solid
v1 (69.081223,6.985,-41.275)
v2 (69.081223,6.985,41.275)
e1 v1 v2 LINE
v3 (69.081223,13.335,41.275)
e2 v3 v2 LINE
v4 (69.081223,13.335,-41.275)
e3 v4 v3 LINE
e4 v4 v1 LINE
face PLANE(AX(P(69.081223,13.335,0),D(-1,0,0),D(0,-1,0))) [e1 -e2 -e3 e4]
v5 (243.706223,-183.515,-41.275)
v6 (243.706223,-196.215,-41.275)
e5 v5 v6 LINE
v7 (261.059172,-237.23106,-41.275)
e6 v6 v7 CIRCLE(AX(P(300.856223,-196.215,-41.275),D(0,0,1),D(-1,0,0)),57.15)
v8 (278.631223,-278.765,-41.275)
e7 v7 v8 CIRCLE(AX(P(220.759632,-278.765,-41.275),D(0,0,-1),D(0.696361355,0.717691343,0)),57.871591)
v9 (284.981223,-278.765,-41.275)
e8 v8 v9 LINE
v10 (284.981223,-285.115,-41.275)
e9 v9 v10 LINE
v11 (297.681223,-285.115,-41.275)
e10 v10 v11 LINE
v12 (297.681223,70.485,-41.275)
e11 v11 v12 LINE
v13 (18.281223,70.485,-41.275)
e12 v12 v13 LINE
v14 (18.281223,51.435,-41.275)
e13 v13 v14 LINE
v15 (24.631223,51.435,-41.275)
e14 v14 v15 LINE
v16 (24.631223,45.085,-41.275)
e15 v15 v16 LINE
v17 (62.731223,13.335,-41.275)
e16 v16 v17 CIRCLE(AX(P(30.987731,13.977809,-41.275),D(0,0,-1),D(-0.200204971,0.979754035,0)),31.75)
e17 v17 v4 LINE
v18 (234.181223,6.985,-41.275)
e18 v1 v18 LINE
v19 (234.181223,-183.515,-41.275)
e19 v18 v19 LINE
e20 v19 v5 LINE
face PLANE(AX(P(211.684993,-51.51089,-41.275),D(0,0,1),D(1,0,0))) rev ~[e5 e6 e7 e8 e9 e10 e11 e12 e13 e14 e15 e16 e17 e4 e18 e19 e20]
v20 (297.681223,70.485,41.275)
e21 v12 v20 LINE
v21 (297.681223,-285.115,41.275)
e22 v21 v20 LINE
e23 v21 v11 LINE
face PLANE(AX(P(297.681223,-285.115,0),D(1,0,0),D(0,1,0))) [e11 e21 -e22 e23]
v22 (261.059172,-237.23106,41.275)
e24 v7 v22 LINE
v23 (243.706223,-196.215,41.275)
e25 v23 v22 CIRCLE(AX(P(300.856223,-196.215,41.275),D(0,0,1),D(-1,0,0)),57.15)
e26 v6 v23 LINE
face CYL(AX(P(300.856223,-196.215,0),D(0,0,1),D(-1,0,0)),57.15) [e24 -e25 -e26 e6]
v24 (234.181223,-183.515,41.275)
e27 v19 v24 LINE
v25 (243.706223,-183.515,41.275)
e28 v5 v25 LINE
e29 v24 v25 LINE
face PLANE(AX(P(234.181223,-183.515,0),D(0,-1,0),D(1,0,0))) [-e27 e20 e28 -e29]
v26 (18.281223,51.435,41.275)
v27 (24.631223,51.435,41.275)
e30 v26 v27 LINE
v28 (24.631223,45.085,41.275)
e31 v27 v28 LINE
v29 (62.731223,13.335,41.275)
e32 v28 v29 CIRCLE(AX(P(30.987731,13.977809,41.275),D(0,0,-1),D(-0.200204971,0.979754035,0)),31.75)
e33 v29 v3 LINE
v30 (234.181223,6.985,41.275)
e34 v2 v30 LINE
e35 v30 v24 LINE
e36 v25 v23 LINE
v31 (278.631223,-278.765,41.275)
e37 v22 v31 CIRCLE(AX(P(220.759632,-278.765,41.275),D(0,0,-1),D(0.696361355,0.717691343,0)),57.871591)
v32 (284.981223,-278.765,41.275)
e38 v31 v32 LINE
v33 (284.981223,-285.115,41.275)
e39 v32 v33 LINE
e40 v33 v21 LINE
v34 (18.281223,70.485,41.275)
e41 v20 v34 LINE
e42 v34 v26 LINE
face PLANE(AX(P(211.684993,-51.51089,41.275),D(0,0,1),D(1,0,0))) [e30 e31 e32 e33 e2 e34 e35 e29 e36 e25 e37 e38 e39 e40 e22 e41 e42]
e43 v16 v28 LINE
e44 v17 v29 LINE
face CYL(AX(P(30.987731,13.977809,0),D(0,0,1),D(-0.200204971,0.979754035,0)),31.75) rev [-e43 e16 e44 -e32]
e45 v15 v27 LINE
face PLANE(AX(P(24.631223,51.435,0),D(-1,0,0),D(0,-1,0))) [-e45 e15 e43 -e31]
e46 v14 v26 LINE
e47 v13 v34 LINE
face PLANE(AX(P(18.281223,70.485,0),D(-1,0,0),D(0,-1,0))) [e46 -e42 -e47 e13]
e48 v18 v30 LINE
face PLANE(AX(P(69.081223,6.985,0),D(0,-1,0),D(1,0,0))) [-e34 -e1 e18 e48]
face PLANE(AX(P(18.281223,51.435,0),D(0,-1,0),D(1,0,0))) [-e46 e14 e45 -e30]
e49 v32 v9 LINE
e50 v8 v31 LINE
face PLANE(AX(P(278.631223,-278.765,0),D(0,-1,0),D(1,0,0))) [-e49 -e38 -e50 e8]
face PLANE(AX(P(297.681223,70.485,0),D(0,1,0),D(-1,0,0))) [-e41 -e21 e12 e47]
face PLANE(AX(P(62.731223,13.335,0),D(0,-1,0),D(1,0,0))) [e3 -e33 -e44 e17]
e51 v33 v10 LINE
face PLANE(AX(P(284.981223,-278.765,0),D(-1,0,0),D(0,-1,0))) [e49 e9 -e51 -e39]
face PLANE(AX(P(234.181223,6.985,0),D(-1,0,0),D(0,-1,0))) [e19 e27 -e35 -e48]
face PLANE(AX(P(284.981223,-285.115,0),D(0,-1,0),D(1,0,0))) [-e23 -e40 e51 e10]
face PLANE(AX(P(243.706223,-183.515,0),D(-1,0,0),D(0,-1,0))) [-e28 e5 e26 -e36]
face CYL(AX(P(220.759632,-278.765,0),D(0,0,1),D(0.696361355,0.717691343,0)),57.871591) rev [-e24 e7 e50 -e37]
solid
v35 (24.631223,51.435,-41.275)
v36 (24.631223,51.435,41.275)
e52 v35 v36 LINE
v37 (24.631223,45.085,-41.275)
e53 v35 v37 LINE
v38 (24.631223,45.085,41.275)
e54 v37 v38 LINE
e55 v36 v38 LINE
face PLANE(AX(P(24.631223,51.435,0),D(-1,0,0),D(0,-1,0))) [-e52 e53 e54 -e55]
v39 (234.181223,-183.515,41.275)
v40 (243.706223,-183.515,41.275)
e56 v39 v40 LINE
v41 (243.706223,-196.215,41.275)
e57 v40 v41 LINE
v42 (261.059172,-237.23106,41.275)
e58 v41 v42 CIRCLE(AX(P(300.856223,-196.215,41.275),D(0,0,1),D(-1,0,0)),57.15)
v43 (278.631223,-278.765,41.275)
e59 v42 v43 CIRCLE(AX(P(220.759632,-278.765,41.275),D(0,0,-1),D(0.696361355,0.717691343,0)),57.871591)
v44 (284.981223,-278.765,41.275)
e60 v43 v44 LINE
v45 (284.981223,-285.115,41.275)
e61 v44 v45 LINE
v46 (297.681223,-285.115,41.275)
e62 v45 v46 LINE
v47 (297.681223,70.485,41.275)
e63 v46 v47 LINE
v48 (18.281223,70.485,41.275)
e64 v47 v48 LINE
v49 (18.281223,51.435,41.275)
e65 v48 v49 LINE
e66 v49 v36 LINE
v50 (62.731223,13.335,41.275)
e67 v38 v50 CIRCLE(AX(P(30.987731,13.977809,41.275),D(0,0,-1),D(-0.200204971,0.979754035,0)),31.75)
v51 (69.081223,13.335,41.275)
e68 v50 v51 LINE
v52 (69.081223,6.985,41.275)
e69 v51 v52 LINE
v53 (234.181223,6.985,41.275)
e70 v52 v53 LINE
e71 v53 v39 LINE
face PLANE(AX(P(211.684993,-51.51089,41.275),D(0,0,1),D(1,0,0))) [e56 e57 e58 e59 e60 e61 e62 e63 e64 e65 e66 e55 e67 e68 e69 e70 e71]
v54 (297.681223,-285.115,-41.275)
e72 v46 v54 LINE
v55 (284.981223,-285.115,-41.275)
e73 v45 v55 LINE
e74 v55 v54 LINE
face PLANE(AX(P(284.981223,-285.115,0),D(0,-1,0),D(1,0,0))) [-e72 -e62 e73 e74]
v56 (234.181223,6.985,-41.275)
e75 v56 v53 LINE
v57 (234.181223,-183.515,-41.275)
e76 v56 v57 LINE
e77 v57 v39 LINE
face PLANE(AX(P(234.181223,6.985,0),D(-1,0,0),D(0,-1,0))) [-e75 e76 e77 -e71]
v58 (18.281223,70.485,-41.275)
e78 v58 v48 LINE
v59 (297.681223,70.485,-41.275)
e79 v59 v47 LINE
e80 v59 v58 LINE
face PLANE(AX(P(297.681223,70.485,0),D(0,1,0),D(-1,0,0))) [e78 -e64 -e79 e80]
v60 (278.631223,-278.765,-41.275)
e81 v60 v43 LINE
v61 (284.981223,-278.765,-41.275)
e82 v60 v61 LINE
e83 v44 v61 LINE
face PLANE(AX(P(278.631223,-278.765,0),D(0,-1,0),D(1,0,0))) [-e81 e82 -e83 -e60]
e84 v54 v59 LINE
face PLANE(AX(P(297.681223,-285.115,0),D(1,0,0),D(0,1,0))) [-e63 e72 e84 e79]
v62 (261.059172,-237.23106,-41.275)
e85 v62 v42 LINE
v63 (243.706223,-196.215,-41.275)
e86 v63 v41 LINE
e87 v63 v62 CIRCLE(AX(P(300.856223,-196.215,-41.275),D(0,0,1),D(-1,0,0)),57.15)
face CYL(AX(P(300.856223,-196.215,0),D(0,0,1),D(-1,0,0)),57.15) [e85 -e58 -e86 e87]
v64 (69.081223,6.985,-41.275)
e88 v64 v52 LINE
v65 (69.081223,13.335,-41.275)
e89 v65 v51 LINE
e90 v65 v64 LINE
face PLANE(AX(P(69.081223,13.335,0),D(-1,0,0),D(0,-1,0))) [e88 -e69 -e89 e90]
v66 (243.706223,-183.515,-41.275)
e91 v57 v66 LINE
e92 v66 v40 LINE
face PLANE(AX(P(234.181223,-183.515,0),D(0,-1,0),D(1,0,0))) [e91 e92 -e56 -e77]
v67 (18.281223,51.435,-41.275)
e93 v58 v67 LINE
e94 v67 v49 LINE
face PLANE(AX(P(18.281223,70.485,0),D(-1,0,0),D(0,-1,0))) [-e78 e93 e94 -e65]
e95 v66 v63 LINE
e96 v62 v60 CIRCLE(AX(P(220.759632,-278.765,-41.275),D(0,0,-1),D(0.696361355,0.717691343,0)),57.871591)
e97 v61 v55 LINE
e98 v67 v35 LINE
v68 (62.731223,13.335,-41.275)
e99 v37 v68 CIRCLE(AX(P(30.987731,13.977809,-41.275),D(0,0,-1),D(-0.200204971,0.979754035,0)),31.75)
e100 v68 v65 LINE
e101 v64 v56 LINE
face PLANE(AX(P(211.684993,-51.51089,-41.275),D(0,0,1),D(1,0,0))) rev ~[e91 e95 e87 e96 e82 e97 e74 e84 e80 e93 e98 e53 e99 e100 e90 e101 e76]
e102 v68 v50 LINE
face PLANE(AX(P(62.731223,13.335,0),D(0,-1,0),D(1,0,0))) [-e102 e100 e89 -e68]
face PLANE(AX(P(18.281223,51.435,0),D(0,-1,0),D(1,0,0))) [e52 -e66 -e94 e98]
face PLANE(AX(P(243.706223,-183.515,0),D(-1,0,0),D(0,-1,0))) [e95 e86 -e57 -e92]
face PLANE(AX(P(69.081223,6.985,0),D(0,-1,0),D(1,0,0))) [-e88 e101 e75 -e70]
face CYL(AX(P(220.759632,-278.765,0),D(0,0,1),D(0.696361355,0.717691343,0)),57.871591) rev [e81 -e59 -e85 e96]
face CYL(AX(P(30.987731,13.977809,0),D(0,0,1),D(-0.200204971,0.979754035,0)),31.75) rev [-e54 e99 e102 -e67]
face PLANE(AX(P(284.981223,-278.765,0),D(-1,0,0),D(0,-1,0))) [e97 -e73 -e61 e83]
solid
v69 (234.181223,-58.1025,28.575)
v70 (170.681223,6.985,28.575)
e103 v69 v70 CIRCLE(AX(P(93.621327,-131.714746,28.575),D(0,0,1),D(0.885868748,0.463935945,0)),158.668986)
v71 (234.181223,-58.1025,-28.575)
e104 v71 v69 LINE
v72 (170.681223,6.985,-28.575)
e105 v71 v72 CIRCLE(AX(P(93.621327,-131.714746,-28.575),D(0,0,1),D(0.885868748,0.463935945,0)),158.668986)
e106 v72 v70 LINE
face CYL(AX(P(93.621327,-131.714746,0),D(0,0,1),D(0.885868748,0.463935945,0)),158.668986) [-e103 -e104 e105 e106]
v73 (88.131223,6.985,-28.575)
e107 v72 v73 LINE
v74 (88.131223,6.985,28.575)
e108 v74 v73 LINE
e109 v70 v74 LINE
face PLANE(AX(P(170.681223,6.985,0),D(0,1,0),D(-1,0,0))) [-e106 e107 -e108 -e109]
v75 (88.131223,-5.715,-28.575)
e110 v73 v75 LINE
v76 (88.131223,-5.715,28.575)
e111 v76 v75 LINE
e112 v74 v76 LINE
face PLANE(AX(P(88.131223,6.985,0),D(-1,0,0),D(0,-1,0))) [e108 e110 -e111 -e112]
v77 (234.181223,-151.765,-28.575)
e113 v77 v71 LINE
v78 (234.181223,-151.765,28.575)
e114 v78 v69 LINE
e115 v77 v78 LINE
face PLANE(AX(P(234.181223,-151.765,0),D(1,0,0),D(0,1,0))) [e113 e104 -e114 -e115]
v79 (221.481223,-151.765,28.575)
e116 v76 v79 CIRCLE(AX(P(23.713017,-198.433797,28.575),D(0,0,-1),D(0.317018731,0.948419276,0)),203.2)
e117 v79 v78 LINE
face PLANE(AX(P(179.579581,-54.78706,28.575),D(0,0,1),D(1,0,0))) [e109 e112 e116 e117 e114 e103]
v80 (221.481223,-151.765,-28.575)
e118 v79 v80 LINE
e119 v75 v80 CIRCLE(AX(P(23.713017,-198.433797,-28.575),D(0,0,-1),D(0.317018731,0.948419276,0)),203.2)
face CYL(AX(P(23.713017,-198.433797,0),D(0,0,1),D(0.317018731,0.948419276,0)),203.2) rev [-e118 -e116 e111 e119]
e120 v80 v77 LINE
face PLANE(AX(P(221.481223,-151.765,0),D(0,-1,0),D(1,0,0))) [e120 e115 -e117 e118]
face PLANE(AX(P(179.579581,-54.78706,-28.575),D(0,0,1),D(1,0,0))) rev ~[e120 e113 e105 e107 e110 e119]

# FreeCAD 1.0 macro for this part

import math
import FreeCAD as App
import Part
import Sketcher

V = App.Vector
Q = App.Units.Quantity

doc = App.newDocument("Part")
body = doc.addObject("PartDesign::Body", "Body")

# Sketch on XY plane
sketch1 = body.newObject("Sketcher::SketchObject", "Sketch")
sketch1.AttachmentSupport = (doc.getObject("XY_Plane"), [""])
sketch1.MapMode = "FlatFace"
sketch1.addGeometry([
    Part.LineSegment(V(298, -285, 0), V(298, 70, 0)),  # 0
    Part.LineSegment(V(298, 70, 0), V(18, 70, 0)),  # 1
    Part.LineSegment(V(18, 70, 0), V(18, 51, 0)),  # 2
    Part.LineSegment(V(18, 51, 0), V(25, 51, 0)),  # 3
    Part.LineSegment(V(25, 51, 0), V(25, 45, 0)),  # 4
    Part.ArcOfCircle(Part.Circle(V(31, 14, 0), V(0, 0, 1), 32), math.radians(-1), math.radians(102)),  # 5
    Part.LineSegment(V(63, 13, 0), V(69, 13, 0)),  # 6
    Part.LineSegment(V(69, 13, 0), V(69, 7, 0)),  # 7
    Part.LineSegment(V(69, 7, 0), V(234, 7, 0)),  # 8
    Part.LineSegment(V(234, 7, 0), V(234, -184, 0)),  # 9
    Part.LineSegment(V(234, -184, 0), V(244, -184, 0)),  # 10
    Part.LineSegment(V(244, -184, 0), V(244, -196, 0)),  # 11
    Part.ArcOfCircle(Part.Circle(V(301, -196, 0), V(0, 0, 1), 57), math.radians(180), math.radians(226)),  # 12
    Part.ArcOfCircle(Part.Circle(V(221, -279, 0), V(0, 0, 1), 58), math.radians(0), math.radians(46)),  # 13
    Part.LineSegment(V(279, -279, 0), V(285, -279, 0)),  # 14
    Part.LineSegment(V(285, -279, 0), V(285, -285, 0)),  # 15
    Part.LineSegment(V(285, -285, 0), V(298, -285, 0)),  # 16
], False)
sketch1.addConstraint([
    Sketcher.Constraint("Coincident", 0, 2, 1, 1),
    Sketcher.Constraint("Coincident", 1, 2, 2, 1),
    Sketcher.Constraint("Coincident", 2, 2, 3, 1),
    Sketcher.Constraint("Coincident", 3, 2, 4, 1),
    Sketcher.Constraint("Coincident", 4, 2, 5, 2),
    Sketcher.Constraint("Coincident", 5, 1, 6, 1),
    Sketcher.Constraint("Coincident", 6, 2, 7, 1),
    Sketcher.Constraint("Coincident", 7, 2, 8, 1),
    Sketcher.Constraint("Coincident", 8, 2, 9, 1),
    Sketcher.Constraint("Coincident", 9, 2, 10, 1),
    Sketcher.Constraint("Coincident", 10, 2, 11, 1),
    Sketcher.Constraint("Tangent", 11, 2, 12, 1),
    Sketcher.Constraint("Tangent", 12, 2, 13, 2),
    Sketcher.Constraint("Coincident", 13, 1, 14, 1),
    Sketcher.Constraint("Coincident", 14, 2, 15, 1),
    Sketcher.Constraint("Coincident", 15, 2, 16, 1),
    Sketcher.Constraint("Coincident", 16, 2, 0, 1),
    Sketcher.Constraint("Vertical", 0),
    Sketcher.Constraint("Horizontal", 1),
    Sketcher.Constraint("Vertical", 2),
    Sketcher.Constraint("Horizontal", 3),
    Sketcher.Constraint("Vertical", 4),
    Sketcher.Constraint("Horizontal", 6),
    Sketcher.Constraint("Vertical", 7),
    Sketcher.Constraint("Horizontal", 8),
    Sketcher.Constraint("Vertical", 9),
    Sketcher.Constraint("Horizontal", 10),
    Sketcher.Constraint("Vertical", 11),
    Sketcher.Constraint("Horizontal", 14),
    Sketcher.Constraint("Vertical", 15),
    Sketcher.Constraint("Horizontal", 16),
    Sketcher.Constraint("Equal", 3, 6),
    Sketcher.Constraint("Equal", 6, 14),
    Sketcher.Constraint("Equal", 14, 4),
    Sketcher.Constraint("Equal", 4, 7),
    Sketcher.Constraint("Equal", 16, 11),
    Sketcher.Constraint("Equal", 7, 15),
    Sketcher.Constraint("DistanceX", 1, 2, 1, 1, Q("11 in")),
    Sketcher.Constraint("DistanceY", 0, 1, 0, 2, Q("14 in")),
    Sketcher.Constraint("Radius", 5, Q("1.25 in")),
    Sketcher.Constraint("Radius", 12, Q("2.25 in")),
    Sketcher.Constraint("DistanceX", 8, 1, 8, 2, Q("6.5 in")),
    Sketcher.Constraint("DistanceX", 16, 1, 16, 2, Q("0.5 in")),
    Sketcher.Constraint("DistanceY", 9, 2, 9, 1, Q("7.5 in")),
    Sketcher.Constraint("DistanceY", 13, 3, 2, 2, Q("13 in")),
    Sketcher.Constraint("DistanceY", 4, 2, 1, 2, Q("1 in")),
    Sketcher.Constraint("DistanceX", 2, 2, 6, 2, Q("2 in")),
    Sketcher.Constraint("DistanceX", 3, 1, 3, 2, Q("0.25 in")),
    Sketcher.Constraint("DistanceY", 12, 3, 0, 2, Q("10.5 in")),
    Sketcher.Constraint("DistanceX", 10, 1, 10, 2, Q("0.375 in")),
    Sketcher.Constraint("DistanceY", 12, 3, -1, 1, Q("7.725 in")),
    Sketcher.Constraint("DistanceX", -1, 1, 5, 3, 30.987731),
])
pad1 = body.newObject("PartDesign::Pad", "Pad")
pad1.Profile = sketch1
pad1.Length = Q("3.25 in")
pad1.Midplane = True
body2 = doc.addObject("PartDesign::Body", "Body001")

# Sketch on XY plane
sketch2 = body2.newObject("Sketcher::SketchObject", "Sketch001")
sketch2.AttachmentSupport = (doc.getObject("XY_Plane001"), [""])
sketch2.MapMode = "FlatFace"
sketch2.addGeometry([
    Part.LineSegment(V(221, -152, 0), V(234, -152, 0)),  # 0
    Part.LineSegment(V(234, -152, 0), V(234, -58, 0)),  # 1
    Part.ArcOfCircle(Part.Circle(V(94, -132, 0), V(0, 0, 1), 159), math.radians(28), math.radians(61)),  # 2
    Part.LineSegment(V(171, 7, 0), V(88, 7, 0)),  # 3
    Part.LineSegment(V(88, 7, 0), V(88, -6, 0)),  # 4
    Part.ArcOfCircle(Part.Circle(V(24, -198, 0), V(0, 0, 1), 203), math.radians(13), math.radians(72)),  # 5
], False)
sketch2.addConstraint([
    Sketcher.Constraint("Coincident", 0, 2, 1, 1),
    Sketcher.Constraint("Coincident", 1, 2, 2, 1),
    Sketcher.Constraint("Coincident", 2, 2, 3, 1),
    Sketcher.Constraint("Coincident", 3, 2, 4, 1),
    Sketcher.Constraint("Coincident", 4, 2, 5, 2),
    Sketcher.Constraint("Coincident", 5, 1, 0, 1),
    Sketcher.Constraint("Horizontal", 0),
    Sketcher.Constraint("Vertical", 1),
    Sketcher.Constraint("Horizontal", 3),
    Sketcher.Constraint("Vertical", 4),
    Sketcher.Constraint("Equal", 0, 4),
    Sketcher.Constraint("Radius", 5, Q("8 in")),
    Sketcher.Constraint("DistanceX", 0, 1, 0, 2, Q("0.5 in")),
    Sketcher.Constraint("DistanceX", 2, 2, 5, 1, Q("2 in")),
    Sketcher.Constraint("DistanceX", 3, 2, 3, 1, Q("3.25 in")),
    Sketcher.Constraint("DistanceY", 1, 1, 1, 2, Q("3.6875 in")),
    Sketcher.Constraint("DistanceY", 0, 2, 2, 2, Q("6.25 in")),
    Sketcher.Constraint("DistanceY", 0, 2, -1, 1, Q("5.975 in")),
    Sketcher.Constraint("Radius", 2, 158.668986),
    Sketcher.Constraint("DistanceX", -1, 1, 2, 3, 93.621327),
])
pad2 = body2.newObject("PartDesign::Pad", "Pad001")
pad2.Profile = sketch2
pad2.Length = Q("2.25 in")
pad2.Midplane = True
body3 = doc.addObject("PartDesign::Body", "Body002")

# Sketch on XY plane
sketch3 = body3.newObject("Sketcher::SketchObject", "Sketch002")
sketch3.AttachmentSupport = (doc.getObject("XY_Plane002"), [""])
sketch3.MapMode = "FlatFace"
sketch3.addGeometry([
    Part.LineSegment(V(298, -285, 0), V(298, 70, 0)),  # 0
    Part.LineSegment(V(298, 70, 0), V(18, 70, 0)),  # 1
    Part.LineSegment(V(18, 70, 0), V(18, 51, 0)),  # 2
    Part.LineSegment(V(18, 51, 0), V(25, 51, 0)),  # 3
    Part.LineSegment(V(25, 51, 0), V(25, 45, 0)),  # 4
    Part.ArcOfCircle(Part.Circle(V(31, 14, 0), V(0, 0, 1), 32), math.radians(-1), math.radians(102)),  # 5
    Part.LineSegment(V(63, 13, 0), V(69, 13, 0)),  # 6
    Part.LineSegment(V(69, 13, 0), V(69, 7, 0)),  # 7
    Part.LineSegment(V(69, 7, 0), V(234, 7, 0)),  # 8
    Part.LineSegment(V(234, 7, 0), V(234, -184, 0)),  # 9
    Part.LineSegment(V(234, -184, 0), V(244, -184, 0)),  # 10
    Part.LineSegment(V(244, -184, 0), V(244, -196, 0)),  # 11
    Part.ArcOfCircle(Part.Circle(V(301, -196, 0), V(0, 0, 1), 57), math.radians(180), math.radians(226)),  # 12
    Part.ArcOfCircle(Part.Circle(V(221, -279, 0), V(0, 0, 1), 58), math.radians(0), math.radians(46)),  # 13
    Part.LineSegment(V(279, -279, 0), V(285, -279, 0)),  # 14
    Part.LineSegment(V(285, -279, 0), V(285, -285, 0)),  # 15
    Part.LineSegment(V(285, -285, 0), V(298, -285, 0)),  # 16
], False)
sketch3.addConstraint([
    Sketcher.Constraint("Coincident", 0, 2, 1, 1),
    Sketcher.Constraint("Coincident", 1, 2, 2, 1),
    Sketcher.Constraint("Coincident", 2, 2, 3, 1),
    Sketcher.Constraint("Coincident", 3, 2, 4, 1),
    Sketcher.Constraint("Coincident", 4, 2, 5, 2),
    Sketcher.Constraint("Coincident", 5, 1, 6, 1),
    Sketcher.Constraint("Coincident", 6, 2, 7, 1),
    Sketcher.Constraint("Coincident", 7, 2, 8, 1),
    Sketcher.Constraint("Coincident", 8, 2, 9, 1),
    Sketcher.Constraint("Coincident", 9, 2, 10, 1),
    Sketcher.Constraint("Coincident", 10, 2, 11, 1),
    Sketcher.Constraint("Tangent", 11, 2, 12, 1),
    Sketcher.Constraint("Tangent", 12, 2, 13, 2),
    Sketcher.Constraint("Coincident", 13, 1, 14, 1),
    Sketcher.Constraint("Coincident", 14, 2, 15, 1),
    Sketcher.Constraint("Coincident", 15, 2, 16, 1),
    Sketcher.Constraint("Coincident", 16, 2, 0, 1),
    Sketcher.Constraint("Vertical", 0),
    Sketcher.Constraint("Horizontal", 1),
    Sketcher.Constraint("Vertical", 2),
    Sketcher.Constraint("Horizontal", 3),
    Sketcher.Constraint("Vertical", 4),
    Sketcher.Constraint("Horizontal", 6),
    Sketcher.Constraint("Vertical", 7),
    Sketcher.Constraint("Horizontal", 8),
    Sketcher.Constraint("Vertical", 9),
    Sketcher.Constraint("Horizontal", 10),
    Sketcher.Constraint("Vertical", 11),
    Sketcher.Constraint("Horizontal", 14),
    Sketcher.Constraint("Vertical", 15),
    Sketcher.Constraint("Horizontal", 16),
    Sketcher.Constraint("Equal", 3, 6),
    Sketcher.Constraint("Equal", 6, 14),
    Sketcher.Constraint("Equal", 14, 4),
    Sketcher.Constraint("Equal", 4, 7),
    Sketcher.Constraint("Equal", 16, 11),
    Sketcher.Constraint("Equal", 7, 15),
    Sketcher.Constraint("DistanceX", 1, 2, 1, 1, Q("11 in")),
    Sketcher.Constraint("DistanceY", 0, 1, 0, 2, Q("14 in")),
    Sketcher.Constraint("Radius", 5, Q("1.25 in")),
    Sketcher.Constraint("Radius", 12, Q("2.25 in")),
    Sketcher.Constraint("DistanceX", 8, 1, 8, 2, Q("6.5 in")),
    Sketcher.Constraint("DistanceX", 16, 1, 16, 2, Q("0.5 in")),
    Sketcher.Constraint("DistanceY", 9, 2, 9, 1, Q("7.5 in")),
    Sketcher.Constraint("DistanceY", 13, 3, 2, 2, Q("13 in")),
    Sketcher.Constraint("DistanceY", 4, 2, 1, 2, Q("1 in")),
    Sketcher.Constraint("DistanceX", 2, 2, 6, 2, Q("2 in")),
    Sketcher.Constraint("DistanceX", 3, 1, 3, 2, Q("0.25 in")),
    Sketcher.Constraint("DistanceY", 12, 3, 0, 2, Q("10.5 in")),
    Sketcher.Constraint("DistanceX", 10, 1, 10, 2, Q("0.375 in")),
    Sketcher.Constraint("DistanceY", 12, 3, -1, 1, Q("7.725 in")),
    Sketcher.Constraint("DistanceX", -1, 1, 5, 3, 30.987731),
])
pad3 = body3.newObject("PartDesign::Pad", "Pad002")
pad3.Profile = sketch3
pad3.Length = Q("3.25 in")
pad3.Midplane = True

doc.recompute()
